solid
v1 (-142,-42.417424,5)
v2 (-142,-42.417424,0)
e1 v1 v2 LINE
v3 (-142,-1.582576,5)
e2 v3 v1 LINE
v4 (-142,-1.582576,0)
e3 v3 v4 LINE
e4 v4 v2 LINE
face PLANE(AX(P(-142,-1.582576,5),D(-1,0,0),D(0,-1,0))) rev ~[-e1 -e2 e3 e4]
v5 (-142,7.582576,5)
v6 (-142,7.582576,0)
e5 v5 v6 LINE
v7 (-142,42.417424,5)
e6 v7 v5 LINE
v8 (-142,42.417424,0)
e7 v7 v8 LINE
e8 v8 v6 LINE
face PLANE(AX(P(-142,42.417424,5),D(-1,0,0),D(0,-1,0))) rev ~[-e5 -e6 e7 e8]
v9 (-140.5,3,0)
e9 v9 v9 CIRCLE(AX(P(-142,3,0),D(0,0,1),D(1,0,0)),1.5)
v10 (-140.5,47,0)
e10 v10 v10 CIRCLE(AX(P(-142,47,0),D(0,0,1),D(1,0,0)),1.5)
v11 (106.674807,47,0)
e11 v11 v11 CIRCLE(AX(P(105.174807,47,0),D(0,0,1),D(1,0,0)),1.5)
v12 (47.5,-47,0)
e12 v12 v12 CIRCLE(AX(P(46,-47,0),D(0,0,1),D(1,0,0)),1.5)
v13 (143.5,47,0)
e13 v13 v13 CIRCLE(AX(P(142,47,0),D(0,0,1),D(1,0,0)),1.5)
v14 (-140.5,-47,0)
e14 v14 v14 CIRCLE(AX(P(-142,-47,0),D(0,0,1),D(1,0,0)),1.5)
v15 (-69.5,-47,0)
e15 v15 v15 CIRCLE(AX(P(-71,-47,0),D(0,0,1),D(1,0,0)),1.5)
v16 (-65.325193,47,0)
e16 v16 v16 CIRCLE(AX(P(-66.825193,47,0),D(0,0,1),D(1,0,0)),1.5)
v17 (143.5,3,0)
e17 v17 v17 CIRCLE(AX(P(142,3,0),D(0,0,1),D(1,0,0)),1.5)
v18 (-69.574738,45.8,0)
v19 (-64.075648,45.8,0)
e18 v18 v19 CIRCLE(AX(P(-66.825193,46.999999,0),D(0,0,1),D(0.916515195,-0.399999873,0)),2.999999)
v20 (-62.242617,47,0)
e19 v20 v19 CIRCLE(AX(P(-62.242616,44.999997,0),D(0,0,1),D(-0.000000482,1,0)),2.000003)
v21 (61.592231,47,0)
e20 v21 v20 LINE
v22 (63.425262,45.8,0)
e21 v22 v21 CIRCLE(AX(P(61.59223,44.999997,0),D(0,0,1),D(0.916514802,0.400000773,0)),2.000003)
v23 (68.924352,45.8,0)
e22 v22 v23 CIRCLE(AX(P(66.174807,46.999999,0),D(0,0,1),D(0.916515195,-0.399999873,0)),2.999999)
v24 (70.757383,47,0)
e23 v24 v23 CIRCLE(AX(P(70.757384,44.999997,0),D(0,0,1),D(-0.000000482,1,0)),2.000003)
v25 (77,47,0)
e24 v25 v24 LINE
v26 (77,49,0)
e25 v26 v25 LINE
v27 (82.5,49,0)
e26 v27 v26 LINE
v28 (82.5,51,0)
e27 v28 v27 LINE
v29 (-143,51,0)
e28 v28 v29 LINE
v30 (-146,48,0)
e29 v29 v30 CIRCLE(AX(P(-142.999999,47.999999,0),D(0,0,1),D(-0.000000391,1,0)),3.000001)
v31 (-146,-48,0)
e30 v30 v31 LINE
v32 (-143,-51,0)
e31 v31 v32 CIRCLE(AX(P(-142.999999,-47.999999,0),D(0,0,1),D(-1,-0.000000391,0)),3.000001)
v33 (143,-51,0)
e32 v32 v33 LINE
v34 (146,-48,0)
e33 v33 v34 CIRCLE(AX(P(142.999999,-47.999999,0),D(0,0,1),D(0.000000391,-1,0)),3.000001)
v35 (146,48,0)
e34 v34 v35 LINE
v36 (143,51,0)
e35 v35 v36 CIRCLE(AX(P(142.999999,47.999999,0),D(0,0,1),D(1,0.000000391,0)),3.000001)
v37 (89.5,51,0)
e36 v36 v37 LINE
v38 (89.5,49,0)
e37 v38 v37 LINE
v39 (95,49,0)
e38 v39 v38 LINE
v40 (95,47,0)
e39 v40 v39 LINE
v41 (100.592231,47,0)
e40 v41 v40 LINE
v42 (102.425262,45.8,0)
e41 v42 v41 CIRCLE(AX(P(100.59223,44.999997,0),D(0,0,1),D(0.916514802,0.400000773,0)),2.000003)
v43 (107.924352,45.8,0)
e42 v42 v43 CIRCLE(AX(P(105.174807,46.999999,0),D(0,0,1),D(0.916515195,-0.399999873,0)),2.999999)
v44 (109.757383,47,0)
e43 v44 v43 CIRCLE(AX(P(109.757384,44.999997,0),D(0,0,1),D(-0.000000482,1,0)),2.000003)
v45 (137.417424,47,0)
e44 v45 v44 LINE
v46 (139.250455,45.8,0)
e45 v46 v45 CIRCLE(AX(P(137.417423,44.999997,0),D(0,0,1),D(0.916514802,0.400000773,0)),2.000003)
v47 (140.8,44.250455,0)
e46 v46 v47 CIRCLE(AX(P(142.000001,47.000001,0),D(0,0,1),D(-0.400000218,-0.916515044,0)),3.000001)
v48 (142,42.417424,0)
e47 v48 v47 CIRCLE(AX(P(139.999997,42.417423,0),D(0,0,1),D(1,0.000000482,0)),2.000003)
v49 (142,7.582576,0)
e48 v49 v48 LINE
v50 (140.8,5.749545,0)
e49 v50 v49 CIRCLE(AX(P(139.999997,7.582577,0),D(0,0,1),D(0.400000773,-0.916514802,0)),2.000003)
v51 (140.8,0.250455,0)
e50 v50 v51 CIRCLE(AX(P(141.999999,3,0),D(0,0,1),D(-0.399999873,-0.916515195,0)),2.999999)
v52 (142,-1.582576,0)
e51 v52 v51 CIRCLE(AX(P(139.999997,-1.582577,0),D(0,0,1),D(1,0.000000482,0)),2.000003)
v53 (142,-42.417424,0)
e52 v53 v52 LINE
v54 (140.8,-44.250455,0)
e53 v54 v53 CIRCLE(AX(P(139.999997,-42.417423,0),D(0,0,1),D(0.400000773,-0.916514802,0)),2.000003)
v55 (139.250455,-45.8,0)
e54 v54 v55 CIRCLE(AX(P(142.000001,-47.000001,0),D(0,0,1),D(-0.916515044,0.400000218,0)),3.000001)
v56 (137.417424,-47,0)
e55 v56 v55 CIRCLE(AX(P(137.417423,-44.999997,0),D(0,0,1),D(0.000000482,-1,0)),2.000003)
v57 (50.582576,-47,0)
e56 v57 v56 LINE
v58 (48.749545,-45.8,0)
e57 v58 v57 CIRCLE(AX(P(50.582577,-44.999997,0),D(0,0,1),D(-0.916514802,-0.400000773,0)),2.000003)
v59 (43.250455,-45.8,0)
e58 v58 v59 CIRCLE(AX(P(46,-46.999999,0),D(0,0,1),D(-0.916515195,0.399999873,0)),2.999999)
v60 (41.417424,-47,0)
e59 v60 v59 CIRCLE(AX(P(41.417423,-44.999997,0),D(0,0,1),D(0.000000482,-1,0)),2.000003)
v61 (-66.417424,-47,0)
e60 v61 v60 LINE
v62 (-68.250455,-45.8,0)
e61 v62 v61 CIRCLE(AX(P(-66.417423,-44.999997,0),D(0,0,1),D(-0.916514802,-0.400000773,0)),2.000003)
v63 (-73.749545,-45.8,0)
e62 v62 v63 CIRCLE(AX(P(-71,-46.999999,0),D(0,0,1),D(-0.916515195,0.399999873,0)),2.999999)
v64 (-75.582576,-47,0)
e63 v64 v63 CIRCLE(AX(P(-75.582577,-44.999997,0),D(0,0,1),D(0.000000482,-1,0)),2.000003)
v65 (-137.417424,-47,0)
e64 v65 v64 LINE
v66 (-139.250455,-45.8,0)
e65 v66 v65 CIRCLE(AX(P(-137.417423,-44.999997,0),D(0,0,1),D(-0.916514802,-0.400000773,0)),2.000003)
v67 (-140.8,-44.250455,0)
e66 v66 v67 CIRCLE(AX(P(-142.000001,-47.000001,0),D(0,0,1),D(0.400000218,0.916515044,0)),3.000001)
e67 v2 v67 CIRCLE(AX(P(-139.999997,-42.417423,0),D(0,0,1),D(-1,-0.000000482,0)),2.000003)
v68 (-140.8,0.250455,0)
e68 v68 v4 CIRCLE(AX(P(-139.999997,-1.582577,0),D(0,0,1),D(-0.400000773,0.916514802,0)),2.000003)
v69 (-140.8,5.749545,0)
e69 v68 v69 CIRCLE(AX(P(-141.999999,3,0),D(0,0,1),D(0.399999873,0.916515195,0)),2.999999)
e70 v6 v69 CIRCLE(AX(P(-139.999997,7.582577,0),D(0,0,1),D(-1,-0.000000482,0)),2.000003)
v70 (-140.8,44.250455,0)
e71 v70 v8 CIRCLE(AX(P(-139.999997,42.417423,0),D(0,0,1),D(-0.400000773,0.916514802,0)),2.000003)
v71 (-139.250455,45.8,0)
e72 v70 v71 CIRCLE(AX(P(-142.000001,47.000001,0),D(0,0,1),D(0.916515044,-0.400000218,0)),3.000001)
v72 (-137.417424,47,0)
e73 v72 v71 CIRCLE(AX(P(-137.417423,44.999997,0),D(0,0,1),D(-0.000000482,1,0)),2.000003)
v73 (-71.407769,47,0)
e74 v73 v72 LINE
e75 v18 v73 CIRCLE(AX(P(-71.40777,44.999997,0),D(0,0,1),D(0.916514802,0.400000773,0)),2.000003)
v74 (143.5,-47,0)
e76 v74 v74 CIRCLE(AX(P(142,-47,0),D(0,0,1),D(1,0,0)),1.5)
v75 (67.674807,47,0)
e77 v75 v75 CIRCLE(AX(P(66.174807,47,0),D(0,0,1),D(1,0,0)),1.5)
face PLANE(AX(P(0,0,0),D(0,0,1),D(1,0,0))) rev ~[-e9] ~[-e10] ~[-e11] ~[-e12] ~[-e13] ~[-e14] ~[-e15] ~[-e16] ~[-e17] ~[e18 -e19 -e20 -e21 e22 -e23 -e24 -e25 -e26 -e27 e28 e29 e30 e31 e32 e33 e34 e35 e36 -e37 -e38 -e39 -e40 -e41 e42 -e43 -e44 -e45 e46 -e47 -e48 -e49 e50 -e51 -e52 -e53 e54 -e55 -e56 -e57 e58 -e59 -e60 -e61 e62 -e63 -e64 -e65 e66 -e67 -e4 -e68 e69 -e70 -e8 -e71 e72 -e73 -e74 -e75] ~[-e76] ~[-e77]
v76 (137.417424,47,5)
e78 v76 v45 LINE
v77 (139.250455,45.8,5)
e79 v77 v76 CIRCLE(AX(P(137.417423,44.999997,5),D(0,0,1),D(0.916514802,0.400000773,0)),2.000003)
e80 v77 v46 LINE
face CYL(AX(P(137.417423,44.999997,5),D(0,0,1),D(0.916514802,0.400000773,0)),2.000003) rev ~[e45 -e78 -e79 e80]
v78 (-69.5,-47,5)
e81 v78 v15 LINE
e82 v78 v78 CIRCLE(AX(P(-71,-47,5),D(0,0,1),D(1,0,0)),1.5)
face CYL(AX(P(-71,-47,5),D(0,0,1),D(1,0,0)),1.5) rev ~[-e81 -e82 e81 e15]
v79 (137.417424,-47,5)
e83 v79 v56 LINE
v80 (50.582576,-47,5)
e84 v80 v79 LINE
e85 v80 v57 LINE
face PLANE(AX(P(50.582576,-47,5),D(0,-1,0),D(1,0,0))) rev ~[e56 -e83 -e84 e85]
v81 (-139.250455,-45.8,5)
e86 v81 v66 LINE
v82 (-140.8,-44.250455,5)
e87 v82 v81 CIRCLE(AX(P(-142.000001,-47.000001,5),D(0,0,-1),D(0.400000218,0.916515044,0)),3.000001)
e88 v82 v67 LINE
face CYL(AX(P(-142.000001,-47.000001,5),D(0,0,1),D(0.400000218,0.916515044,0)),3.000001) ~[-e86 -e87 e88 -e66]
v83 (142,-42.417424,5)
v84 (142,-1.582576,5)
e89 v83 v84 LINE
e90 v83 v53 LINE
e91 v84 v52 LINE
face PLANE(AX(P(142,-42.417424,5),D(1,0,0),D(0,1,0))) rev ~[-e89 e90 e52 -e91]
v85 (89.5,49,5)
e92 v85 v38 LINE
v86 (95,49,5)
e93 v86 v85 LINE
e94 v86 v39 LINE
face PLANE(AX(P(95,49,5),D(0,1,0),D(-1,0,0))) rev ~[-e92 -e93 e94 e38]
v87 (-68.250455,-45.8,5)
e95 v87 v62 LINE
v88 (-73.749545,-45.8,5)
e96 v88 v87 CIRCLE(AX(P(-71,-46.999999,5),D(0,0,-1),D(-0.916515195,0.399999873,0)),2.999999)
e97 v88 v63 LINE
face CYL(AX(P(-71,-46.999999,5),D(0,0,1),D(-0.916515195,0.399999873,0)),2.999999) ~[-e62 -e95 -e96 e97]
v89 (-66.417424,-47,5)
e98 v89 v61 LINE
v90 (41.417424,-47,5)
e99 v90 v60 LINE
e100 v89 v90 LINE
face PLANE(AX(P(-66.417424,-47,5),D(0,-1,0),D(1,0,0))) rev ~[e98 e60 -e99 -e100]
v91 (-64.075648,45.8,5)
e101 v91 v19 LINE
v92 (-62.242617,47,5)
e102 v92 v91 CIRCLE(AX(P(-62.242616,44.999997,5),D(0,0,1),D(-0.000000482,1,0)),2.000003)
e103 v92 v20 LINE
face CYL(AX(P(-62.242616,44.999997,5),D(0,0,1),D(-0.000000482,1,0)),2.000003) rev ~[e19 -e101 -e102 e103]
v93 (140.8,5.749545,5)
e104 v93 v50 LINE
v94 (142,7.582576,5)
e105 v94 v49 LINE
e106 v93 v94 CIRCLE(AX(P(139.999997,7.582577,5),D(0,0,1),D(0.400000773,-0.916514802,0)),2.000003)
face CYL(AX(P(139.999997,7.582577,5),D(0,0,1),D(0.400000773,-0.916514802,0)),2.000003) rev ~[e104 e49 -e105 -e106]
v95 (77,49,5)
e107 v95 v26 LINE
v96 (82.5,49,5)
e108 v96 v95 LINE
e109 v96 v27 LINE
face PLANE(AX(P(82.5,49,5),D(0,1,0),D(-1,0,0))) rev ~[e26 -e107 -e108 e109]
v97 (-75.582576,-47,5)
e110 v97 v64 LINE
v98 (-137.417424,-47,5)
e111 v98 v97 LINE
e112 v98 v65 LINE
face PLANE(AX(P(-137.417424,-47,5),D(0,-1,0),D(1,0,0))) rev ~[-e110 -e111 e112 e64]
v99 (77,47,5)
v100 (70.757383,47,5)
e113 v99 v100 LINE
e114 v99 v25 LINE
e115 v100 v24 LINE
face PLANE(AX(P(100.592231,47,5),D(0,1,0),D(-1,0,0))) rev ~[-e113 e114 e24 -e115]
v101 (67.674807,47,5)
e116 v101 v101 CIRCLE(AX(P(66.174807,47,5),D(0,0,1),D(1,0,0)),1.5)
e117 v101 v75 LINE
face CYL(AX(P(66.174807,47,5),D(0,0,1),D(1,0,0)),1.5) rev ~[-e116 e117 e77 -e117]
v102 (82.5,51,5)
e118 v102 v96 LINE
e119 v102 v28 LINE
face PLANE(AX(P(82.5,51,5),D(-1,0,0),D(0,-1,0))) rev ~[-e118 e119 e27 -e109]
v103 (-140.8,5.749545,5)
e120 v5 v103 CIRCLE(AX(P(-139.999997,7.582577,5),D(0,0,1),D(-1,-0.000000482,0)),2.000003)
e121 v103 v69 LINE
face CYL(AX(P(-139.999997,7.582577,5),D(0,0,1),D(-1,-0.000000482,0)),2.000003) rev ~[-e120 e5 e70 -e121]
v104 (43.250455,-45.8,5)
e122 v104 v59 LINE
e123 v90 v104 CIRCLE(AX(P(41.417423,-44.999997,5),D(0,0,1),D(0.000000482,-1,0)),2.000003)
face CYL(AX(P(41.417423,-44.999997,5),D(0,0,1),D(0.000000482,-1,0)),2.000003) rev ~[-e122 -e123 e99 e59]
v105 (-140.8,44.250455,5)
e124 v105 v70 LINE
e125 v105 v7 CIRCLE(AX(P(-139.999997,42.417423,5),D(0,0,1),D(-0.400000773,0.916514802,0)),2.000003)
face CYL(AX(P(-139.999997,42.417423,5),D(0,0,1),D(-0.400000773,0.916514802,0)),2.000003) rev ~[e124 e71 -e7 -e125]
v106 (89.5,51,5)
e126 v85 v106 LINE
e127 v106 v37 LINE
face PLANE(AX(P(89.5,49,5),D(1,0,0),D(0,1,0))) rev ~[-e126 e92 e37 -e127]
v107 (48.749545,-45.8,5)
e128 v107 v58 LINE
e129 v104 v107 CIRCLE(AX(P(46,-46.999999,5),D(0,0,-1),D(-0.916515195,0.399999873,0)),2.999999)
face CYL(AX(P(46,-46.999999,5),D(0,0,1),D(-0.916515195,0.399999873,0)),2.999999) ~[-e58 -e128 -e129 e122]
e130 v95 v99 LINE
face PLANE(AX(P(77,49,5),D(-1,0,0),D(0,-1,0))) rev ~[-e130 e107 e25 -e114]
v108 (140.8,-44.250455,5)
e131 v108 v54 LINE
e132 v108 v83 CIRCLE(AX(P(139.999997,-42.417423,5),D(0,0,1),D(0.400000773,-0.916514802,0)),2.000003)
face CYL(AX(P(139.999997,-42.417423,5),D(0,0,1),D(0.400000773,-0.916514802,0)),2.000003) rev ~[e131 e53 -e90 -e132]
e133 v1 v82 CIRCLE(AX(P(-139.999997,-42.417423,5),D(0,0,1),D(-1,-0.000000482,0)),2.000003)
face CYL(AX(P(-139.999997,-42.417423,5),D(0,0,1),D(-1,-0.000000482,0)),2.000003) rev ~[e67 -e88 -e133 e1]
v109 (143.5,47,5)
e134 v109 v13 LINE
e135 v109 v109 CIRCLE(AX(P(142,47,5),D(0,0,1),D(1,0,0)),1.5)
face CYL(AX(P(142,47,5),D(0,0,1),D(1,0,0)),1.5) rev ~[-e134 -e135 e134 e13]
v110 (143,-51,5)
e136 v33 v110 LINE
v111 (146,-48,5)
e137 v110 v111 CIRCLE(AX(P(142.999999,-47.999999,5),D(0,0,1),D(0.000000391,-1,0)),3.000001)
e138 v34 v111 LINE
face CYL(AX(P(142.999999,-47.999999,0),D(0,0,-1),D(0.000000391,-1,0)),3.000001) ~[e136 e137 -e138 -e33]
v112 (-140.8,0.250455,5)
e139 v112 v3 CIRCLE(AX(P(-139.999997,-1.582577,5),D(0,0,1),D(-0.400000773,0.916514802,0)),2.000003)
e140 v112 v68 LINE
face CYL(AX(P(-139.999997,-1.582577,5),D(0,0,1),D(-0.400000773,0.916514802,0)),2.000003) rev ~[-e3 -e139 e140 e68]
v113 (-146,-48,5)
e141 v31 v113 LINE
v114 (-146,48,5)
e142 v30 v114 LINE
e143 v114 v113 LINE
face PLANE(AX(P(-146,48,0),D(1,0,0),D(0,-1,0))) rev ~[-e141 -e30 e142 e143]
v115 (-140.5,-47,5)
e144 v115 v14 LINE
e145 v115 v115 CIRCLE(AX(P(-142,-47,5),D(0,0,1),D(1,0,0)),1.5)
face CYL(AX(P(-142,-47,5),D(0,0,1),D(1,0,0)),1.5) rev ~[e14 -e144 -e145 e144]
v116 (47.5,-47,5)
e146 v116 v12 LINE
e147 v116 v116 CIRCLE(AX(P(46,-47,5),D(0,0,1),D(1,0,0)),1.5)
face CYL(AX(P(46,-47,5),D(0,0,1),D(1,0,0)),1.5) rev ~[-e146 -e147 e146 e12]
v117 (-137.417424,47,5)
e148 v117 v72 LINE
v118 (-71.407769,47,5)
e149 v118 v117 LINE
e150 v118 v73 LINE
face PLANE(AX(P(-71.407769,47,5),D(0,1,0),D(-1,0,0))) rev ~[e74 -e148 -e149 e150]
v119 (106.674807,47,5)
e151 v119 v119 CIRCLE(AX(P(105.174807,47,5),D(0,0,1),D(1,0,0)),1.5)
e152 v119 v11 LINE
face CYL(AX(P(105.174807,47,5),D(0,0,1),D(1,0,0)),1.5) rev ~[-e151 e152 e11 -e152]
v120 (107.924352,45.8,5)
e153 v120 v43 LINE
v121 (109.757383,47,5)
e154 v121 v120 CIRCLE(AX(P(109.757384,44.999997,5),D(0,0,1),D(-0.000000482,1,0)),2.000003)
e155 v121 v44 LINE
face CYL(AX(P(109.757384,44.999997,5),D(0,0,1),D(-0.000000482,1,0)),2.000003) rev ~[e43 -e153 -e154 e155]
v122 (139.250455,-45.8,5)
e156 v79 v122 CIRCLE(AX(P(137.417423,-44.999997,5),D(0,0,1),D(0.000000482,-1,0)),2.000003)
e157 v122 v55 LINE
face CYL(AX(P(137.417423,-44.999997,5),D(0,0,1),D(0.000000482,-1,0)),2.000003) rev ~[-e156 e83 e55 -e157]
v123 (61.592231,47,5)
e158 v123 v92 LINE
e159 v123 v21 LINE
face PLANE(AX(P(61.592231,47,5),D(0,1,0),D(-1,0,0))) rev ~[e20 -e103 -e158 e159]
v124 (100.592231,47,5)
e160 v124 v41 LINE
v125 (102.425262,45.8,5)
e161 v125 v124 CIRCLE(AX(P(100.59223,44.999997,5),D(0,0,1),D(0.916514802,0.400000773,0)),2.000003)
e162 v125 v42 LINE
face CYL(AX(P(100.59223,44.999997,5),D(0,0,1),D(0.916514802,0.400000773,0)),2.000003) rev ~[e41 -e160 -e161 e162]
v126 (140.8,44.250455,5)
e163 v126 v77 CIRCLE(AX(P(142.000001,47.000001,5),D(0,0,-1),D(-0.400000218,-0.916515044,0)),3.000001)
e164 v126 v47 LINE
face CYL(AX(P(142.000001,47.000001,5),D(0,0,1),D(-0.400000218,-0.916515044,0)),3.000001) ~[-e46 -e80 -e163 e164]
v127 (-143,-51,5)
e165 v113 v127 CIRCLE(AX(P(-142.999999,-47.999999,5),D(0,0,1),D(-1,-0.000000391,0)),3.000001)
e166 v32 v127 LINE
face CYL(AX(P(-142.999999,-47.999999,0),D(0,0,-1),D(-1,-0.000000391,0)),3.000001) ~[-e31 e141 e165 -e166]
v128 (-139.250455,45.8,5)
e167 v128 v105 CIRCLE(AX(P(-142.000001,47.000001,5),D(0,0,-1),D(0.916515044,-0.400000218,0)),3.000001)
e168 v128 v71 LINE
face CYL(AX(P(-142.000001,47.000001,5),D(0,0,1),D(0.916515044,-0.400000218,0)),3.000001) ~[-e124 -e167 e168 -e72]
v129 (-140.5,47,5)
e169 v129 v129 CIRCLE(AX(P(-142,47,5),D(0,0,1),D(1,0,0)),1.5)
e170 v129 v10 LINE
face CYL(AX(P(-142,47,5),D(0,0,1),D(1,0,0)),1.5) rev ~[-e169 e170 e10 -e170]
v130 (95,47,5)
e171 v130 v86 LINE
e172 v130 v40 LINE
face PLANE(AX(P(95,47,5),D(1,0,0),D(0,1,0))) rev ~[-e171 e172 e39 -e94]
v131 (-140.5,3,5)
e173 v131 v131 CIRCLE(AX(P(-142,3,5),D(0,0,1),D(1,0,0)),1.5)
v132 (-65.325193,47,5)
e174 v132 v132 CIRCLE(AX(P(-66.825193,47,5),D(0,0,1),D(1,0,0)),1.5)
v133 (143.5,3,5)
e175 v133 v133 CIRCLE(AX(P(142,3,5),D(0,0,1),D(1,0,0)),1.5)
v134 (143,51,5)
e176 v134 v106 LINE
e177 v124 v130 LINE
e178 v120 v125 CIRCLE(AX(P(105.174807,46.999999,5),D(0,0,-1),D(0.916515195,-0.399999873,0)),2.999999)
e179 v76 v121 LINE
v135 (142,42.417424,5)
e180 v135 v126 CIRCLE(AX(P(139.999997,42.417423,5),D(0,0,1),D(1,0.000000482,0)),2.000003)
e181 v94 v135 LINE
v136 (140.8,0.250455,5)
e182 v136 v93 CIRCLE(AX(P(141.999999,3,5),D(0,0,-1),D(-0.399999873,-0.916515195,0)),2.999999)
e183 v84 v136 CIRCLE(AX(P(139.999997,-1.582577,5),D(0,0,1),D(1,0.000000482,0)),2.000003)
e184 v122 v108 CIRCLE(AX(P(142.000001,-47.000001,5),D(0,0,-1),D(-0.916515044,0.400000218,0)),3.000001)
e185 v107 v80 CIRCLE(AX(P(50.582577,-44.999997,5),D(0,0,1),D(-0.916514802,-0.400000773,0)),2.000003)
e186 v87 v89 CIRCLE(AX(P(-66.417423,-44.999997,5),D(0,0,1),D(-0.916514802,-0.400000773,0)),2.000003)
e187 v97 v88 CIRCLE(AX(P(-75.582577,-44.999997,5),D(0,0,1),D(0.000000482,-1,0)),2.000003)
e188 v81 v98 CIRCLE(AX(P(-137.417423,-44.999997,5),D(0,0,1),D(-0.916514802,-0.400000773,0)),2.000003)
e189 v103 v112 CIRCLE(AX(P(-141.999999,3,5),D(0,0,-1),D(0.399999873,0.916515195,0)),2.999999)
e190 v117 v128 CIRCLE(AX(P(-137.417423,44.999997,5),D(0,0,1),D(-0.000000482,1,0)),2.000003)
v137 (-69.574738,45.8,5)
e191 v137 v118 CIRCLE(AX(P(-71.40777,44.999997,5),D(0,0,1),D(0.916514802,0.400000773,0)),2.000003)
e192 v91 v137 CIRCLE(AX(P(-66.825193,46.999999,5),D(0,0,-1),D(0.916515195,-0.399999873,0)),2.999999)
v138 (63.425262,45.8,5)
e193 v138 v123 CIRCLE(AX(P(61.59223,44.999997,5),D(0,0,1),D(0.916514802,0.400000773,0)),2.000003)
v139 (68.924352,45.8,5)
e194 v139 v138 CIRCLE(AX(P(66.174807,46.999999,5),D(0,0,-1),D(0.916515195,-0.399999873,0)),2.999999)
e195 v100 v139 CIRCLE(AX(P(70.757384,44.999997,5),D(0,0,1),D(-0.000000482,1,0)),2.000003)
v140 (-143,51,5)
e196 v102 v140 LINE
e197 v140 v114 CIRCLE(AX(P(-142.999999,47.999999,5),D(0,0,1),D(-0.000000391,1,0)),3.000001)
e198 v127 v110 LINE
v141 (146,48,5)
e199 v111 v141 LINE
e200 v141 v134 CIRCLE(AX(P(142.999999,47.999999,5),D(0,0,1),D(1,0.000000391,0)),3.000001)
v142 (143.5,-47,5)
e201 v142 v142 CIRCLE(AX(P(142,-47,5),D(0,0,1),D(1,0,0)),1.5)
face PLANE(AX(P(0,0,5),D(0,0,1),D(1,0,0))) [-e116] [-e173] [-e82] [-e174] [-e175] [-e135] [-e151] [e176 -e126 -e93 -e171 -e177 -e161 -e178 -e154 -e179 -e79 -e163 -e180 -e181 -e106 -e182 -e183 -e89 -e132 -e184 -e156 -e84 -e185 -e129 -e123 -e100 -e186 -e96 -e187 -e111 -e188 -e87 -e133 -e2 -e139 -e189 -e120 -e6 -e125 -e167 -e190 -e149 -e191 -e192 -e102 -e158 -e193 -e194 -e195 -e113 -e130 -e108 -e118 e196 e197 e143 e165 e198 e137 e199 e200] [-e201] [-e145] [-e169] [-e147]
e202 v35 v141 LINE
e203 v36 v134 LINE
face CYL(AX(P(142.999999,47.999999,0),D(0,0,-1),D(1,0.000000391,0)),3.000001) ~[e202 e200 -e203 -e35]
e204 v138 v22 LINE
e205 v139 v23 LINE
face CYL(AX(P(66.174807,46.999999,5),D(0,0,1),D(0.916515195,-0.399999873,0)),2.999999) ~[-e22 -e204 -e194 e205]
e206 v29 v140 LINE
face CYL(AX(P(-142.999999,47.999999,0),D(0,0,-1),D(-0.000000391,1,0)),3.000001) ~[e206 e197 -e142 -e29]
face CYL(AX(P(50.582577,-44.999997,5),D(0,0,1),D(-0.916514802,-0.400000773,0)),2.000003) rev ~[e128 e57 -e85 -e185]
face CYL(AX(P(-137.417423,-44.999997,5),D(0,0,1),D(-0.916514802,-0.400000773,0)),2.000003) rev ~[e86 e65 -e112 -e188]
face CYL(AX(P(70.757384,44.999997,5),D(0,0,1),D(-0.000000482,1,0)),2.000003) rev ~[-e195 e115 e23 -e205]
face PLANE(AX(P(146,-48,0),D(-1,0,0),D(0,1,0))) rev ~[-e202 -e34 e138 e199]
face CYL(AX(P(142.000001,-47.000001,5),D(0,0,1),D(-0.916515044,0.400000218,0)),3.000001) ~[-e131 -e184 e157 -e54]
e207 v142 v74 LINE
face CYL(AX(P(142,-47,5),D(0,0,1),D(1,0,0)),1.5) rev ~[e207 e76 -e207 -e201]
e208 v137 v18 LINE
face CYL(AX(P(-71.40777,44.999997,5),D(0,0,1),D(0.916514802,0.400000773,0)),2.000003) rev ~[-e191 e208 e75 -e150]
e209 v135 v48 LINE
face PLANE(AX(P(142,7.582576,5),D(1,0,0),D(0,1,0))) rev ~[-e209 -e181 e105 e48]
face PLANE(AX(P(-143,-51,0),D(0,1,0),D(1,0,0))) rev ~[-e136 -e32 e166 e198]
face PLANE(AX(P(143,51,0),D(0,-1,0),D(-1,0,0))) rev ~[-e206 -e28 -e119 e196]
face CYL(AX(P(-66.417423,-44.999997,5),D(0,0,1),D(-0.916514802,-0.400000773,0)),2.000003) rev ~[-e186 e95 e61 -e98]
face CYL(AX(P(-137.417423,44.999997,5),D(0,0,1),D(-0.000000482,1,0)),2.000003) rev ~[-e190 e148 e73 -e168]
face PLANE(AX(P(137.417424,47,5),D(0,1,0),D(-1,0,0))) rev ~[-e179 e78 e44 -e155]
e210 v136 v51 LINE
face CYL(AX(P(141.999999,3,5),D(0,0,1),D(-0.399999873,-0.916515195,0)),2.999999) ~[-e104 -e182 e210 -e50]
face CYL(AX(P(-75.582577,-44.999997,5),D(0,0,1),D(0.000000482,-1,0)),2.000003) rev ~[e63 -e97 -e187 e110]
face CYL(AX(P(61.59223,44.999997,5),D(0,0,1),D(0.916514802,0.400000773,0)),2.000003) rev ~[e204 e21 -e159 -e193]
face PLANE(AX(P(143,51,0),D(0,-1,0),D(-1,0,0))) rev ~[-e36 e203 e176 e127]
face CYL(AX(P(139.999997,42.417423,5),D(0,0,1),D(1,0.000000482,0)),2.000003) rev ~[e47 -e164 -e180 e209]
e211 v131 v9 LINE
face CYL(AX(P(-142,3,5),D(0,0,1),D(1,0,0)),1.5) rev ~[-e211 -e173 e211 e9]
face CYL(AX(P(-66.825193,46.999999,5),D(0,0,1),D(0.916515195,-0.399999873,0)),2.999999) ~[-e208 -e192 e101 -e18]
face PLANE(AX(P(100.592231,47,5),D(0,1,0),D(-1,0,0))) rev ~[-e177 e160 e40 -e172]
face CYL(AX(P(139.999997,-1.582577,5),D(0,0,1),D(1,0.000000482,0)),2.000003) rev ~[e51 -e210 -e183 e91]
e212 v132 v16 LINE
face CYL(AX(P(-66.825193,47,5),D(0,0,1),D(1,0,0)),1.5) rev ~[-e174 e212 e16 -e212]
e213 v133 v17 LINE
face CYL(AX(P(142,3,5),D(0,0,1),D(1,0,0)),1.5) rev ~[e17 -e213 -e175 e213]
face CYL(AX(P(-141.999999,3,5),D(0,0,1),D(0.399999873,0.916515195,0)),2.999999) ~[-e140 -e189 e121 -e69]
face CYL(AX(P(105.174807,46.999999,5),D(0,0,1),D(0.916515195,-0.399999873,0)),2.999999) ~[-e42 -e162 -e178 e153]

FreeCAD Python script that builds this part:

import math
import FreeCAD as App
import Part
import Sketcher
from FreeCAD import Vector
Q = App.Units.Quantity

doc = App.newDocument("Part")
body = doc.addObject("PartDesign::Body", "Body")

# Sketch on XY plane
sketch1 = doc.addObject("Sketcher::SketchObject", "Sketch")
body.addObject(sketch1)
sketch1.AttachmentSupport = (doc.XY_Plane, [""])
sketch1.MapMode = "FlatFace"
sketch1.addGeometry(Part.ArcOfCircle(Part.Circle(Vector(143, 48, 0), Vector(0, 0, 1), 3), math.radians(0), math.radians(90)), False)
sketch1.addGeometry(Part.LineSegment(Vector(143, 51, 0), Vector(-143, 51, 0)), False)
sketch1.addGeometry(Part.ArcOfCircle(Part.Circle(Vector(-143, 48, 0), Vector(0, 0, 1), 3), math.radians(90), math.radians(180)), False)
sketch1.addGeometry(Part.LineSegment(Vector(-146, 48, 0), Vector(-146, -48, 0)), False)
sketch1.addGeometry(Part.ArcOfCircle(Part.Circle(Vector(-143, -48, 0), Vector(0, 0, 1), 3), math.radians(-180), math.radians(-90)), False)
sketch1.addGeometry(Part.LineSegment(Vector(-143, -51, 0), Vector(143, -51, 0)), False)
sketch1.addGeometry(Part.ArcOfCircle(Part.Circle(Vector(143, -48, 0), Vector(0, 0, 1), 3), math.radians(-90), math.radians(0)), False)
sketch1.addGeometry(Part.LineSegment(Vector(146, -48, 0), Vector(146, 48, 0)), False)
sketch1.addConstraint(Sketcher.Constraint("Tangent", 0, 2, 1, 1))
sketch1.addConstraint(Sketcher.Constraint("Tangent", 1, 2, 2, 1))
sketch1.addConstraint(Sketcher.Constraint("Tangent", 2, 2, 3, 1))
sketch1.addConstraint(Sketcher.Constraint("Tangent", 3, 2, 4, 1))
sketch1.addConstraint(Sketcher.Constraint("Tangent", 4, 2, 5, 1))
sketch1.addConstraint(Sketcher.Constraint("Tangent", 5, 2, 6, 1))
sketch1.addConstraint(Sketcher.Constraint("Tangent", 6, 2, 7, 1))
sketch1.addConstraint(Sketcher.Constraint("Tangent", 7, 2, 0, 1))
sketch1.addConstraint(Sketcher.Constraint("Horizontal", 1))
sketch1.addConstraint(Sketcher.Constraint("Vertical", 3))
sketch1.addConstraint(Sketcher.Constraint("Horizontal", 5))
sketch1.addConstraint(Sketcher.Constraint("Vertical", 7))
sketch1.addConstraint(Sketcher.Constraint("Equal", 0, 2))
sketch1.addConstraint(Sketcher.Constraint("Equal", 2, 4))
sketch1.addConstraint(Sketcher.Constraint("Equal", 4, 6))
sketch1.addConstraint(Sketcher.Constraint("Symmetric", 0, 3, 4, 3, -1, 1))
sketch1.addConstraint(Sketcher.Constraint("Radius", 0, Q("3.000001 mm")))
sketch1.addConstraint(Sketcher.Constraint("DistanceX", 1, 2, 1, 1, Q("286 mm")))
sketch1.addConstraint(Sketcher.Constraint("DistanceY", 3, 2, 3, 1, Q("96 mm")))
pad1 = doc.addObject("PartDesign::Pad", "Pad")
body.addObject(pad1)
pad1.Profile = sketch1
pad1.Length = 5

# Sketch on XY plane
sketch2 = doc.addObject("Sketcher::SketchObject", "Sketch001")
body.addObject(sketch2)
sketch2.AttachmentSupport = (doc.XY_Plane, [""])
sketch2.MapMode = "FlatFace"
sketch2.AttachmentOffset = App.Placement(Vector(0, 0, 5), App.Rotation())
sketch2.addGeometry(Part.Circle(Vector(-142, 47, 0), Vector(0, 0, 1), 1.1), False)
sketch2.addGeometry(Part.Circle(Vector(142, 47, 0), Vector(0, 0, 1), 1.1), False)
sketch2.addGeometry(Part.Circle(Vector(-66.8, 47, 0), Vector(0, 0, 1), 1.1), False)
sketch2.addGeometry(Part.Circle(Vector(66.2, 47, 0), Vector(0, 0, 1), 1.1), False)
sketch2.addGeometry(Part.Circle(Vector(-142, -47, 0), Vector(0, 0, 1), 1.1), False)
sketch2.addGeometry(Part.Circle(Vector(142, -47, 0), Vector(0, 0, 1), 1.1), False)
sketch2.addGeometry(Part.Circle(Vector(-71, -47, 0), Vector(0, 0, 1), 1.1), False)
sketch2.addGeometry(Part.Circle(Vector(46, -47, 0), Vector(0, 0, 1), 1.1), False)
sketch2.addGeometry(Part.Circle(Vector(142, 3, 0), Vector(0, 0, 1), 1.1), False)
sketch2.addGeometry(Part.Circle(Vector(-142, 3, 0), Vector(0, 0, 1), 1.1), False)
sketch2.addConstraint(Sketcher.Constraint("Equal", 0, 1))
sketch2.addConstraint(Sketcher.Constraint("Equal", 1, 2))
sketch2.addConstraint(Sketcher.Constraint("Equal", 2, 3))
sketch2.addConstraint(Sketcher.Constraint("Equal", 3, 4))
sketch2.addConstraint(Sketcher.Constraint("Equal", 4, 5))
sketch2.addConstraint(Sketcher.Constraint("Equal", 5, 6))
sketch2.addConstraint(Sketcher.Constraint("Equal", 6, 7))
sketch2.addConstraint(Sketcher.Constraint("Equal", 7, 8))
sketch2.addConstraint(Sketcher.Constraint("Equal", 8, 9))
sketch2.addConstraint(Sketcher.Constraint("Symmetric", 1, 3, 4, 3, -1, 1))
sketch2.addConstraint(Sketcher.Constraint("Symmetric", 0, 3, 5, 3, -1, 1))
sketch2.addConstraint(Sketcher.Constraint("Symmetric", 0, 3, 1, 3, -2))
sketch2.addConstraint(Sketcher.Constraint("Symmetric", 8, 3, 9, 3, -2))
sketch2.addConstraint(Sketcher.Constraint("Horizontal", 1, 3, 2, 3))
sketch2.addConstraint(Sketcher.Constraint("Horizontal", 2, 3, 3, 3))
sketch2.addConstraint(Sketcher.Constraint("Horizontal", 5, 3, 6, 3))
sketch2.addConstraint(Sketcher.Constraint("Horizontal", 6, 3, 7, 3))
sketch2.addConstraint(Sketcher.Constraint("Vertical", 5, 3, 8, 3))
sketch2.addConstraint(Sketcher.Constraint("Diameter", 0, Q("2.2 mm")))
sketch2.addConstraint(Sketcher.Constraint("DistanceX", 0, 3, -1, 1, Q("142 mm")))
sketch2.addConstraint(Sketcher.Constraint("DistanceY", -1, 1, 0, 3, Q("47 mm")))
sketch2.addConstraint(Sketcher.Constraint("DistanceX", 6, 3, -1, 1, Q("71 mm")))
sketch2.addConstraint(Sketcher.Constraint("DistanceX", -1, 1, 7, 3, Q("46 mm")))
sketch2.addConstraint(Sketcher.Constraint("DistanceY", -1, 1, 8, 3, Q("3 mm")))
sketch2.addConstraint(Sketcher.Constraint("DistanceX", 2, 3, 3, 3, Q("133 mm")))
sketch2.addConstraint(Sketcher.Constraint("DistanceX", 2, 3, -1, 1, Q("66.825193 mm")))
pocket1 = doc.addObject("PartDesign::Pocket", "Pocket")
body.addObject(pocket1)
pocket1.Profile = sketch2
pocket1.Type = "ThroughAll"

# Sketch on XY plane
sketch3 = doc.addObject("Sketcher::SketchObject", "Sketch002")
body.addObject(sketch3)
sketch3.AttachmentSupport = (doc.XY_Plane, [""])
sketch3.MapMode = "FlatFace"
sketch3.AttachmentOffset = App.Placement(Vector(0, 0, 5), App.Rotation())
sketch3.addGeometry(Part.LineSegment(Vector(-71.4, 47, 0), Vector(-137.4, 47, 0)), False)
sketch3.addGeometry(Part.ArcOfCircle(Part.Circle(Vector(-137.4, 45, 0), Vector(0, 0, 1), 2), math.radians(90), math.radians(156)), False)
sketch3.addGeometry(Part.ArcOfCircle(Part.Circle(Vector(-142, 47, 0), Vector(0, 0, 1), 3), math.radians(-66), math.radians(-24)), False)
sketch3.addGeometry(Part.ArcOfCircle(Part.Circle(Vector(-140, 42.4, 0), Vector(0, 0, 1), 2), math.radians(114), math.radians(180)), False)
sketch3.addGeometry(Part.LineSegment(Vector(-142, 42.4, 0), Vector(-142, 7.6, 0)), False)
sketch3.addGeometry(Part.ArcOfCircle(Part.Circle(Vector(-140, 7.6, 0), Vector(0, 0, 1), 2), math.radians(-180), math.radians(-114)), False)
sketch3.addGeometry(Part.ArcOfCircle(Part.Circle(Vector(-142, 3, 0), Vector(0, 0, 1), 3), math.radians(-66), math.radians(66)), False)
sketch3.addGeometry(Part.ArcOfCircle(Part.Circle(Vector(-140, -1.6, 0), Vector(0, 0, 1), 2), math.radians(114), math.radians(180)), False)
sketch3.addGeometry(Part.LineSegment(Vector(-142, -1.6, 0), Vector(-142, -42.4, 0)), False)
sketch3.addGeometry(Part.ArcOfCircle(Part.Circle(Vector(-140, -42.4, 0), Vector(0, 0, 1), 2), math.radians(-180), math.radians(-114)), False)
sketch3.addGeometry(Part.ArcOfCircle(Part.Circle(Vector(-142, -47, 0), Vector(0, 0, 1), 3), math.radians(24), math.radians(66)), False)
sketch3.addGeometry(Part.ArcOfCircle(Part.Circle(Vector(-137.4, -45, 0), Vector(0, 0, 1), 2), math.radians(-156), math.radians(-90)), False)
sketch3.addGeometry(Part.LineSegment(Vector(-137.4, -47, 0), Vector(-75.6, -47, 0)), False)
sketch3.addGeometry(Part.ArcOfCircle(Part.Circle(Vector(-75.6, -45, 0), Vector(0, 0, 1), 2), math.radians(-90), math.radians(-24)), False)
sketch3.addGeometry(Part.ArcOfCircle(Part.Circle(Vector(-71, -47, 0), Vector(0, 0, 1), 3), math.radians(24), math.radians(156)), False)
sketch3.addGeometry(Part.ArcOfCircle(Part.Circle(Vector(-66.4, -45, 0), Vector(0, 0, 1), 2), math.radians(-156), math.radians(-90)), False)
sketch3.addGeometry(Part.LineSegment(Vector(-66.4, -47, 0), Vector(41.4, -47, 0)), False)
sketch3.addGeometry(Part.ArcOfCircle(Part.Circle(Vector(41.4, -45, 0), Vector(0, 0, 1), 2), math.radians(-90), math.radians(-24)), False)
sketch3.addGeometry(Part.ArcOfCircle(Part.Circle(Vector(46, -47, 0), Vector(0, 0, 1), 3), math.radians(24), math.radians(156)), False)
sketch3.addGeometry(Part.ArcOfCircle(Part.Circle(Vector(50.6, -45, 0), Vector(0, 0, 1), 2), math.radians(-156), math.radians(-90)), False)
sketch3.addGeometry(Part.LineSegment(Vector(50.6, -47, 0), Vector(137.4, -47, 0)), False)
sketch3.addGeometry(Part.ArcOfCircle(Part.Circle(Vector(137.4, -45, 0), Vector(0, 0, 1), 2), math.radians(-90), math.radians(-24)), False)
sketch3.addGeometry(Part.ArcOfCircle(Part.Circle(Vector(142, -47, 0), Vector(0, 0, 1), 3), math.radians(114), math.radians(156)), False)
sketch3.addGeometry(Part.ArcOfCircle(Part.Circle(Vector(140, -42.4, 0), Vector(0, 0, 1), 2), math.radians(-66), math.radians(0)), False)
sketch3.addGeometry(Part.LineSegment(Vector(142, -42.4, 0), Vector(142, -1.6, 0)), False)
sketch3.addGeometry(Part.ArcOfCircle(Part.Circle(Vector(140, -1.6, 0), Vector(0, 0, 1), 2), math.radians(0), math.radians(66)), False)
sketch3.addGeometry(Part.ArcOfCircle(Part.Circle(Vector(142, 3, 0), Vector(0, 0, 1), 3), math.radians(114), math.radians(246)), False)
sketch3.addGeometry(Part.ArcOfCircle(Part.Circle(Vector(140, 7.6, 0), Vector(0, 0, 1), 2), math.radians(-66), math.radians(0)), False)
sketch3.addGeometry(Part.LineSegment(Vector(142, 7.6, 0), Vector(142, 42.4, 0)), False)
sketch3.addGeometry(Part.ArcOfCircle(Part.Circle(Vector(140, 42.4, 0), Vector(0, 0, 1), 2), math.radians(0), math.radians(66)), False)
sketch3.addGeometry(Part.ArcOfCircle(Part.Circle(Vector(142, 47, 0), Vector(0, 0, 1), 3), math.radians(-156), math.radians(-114)), False)
sketch3.addGeometry(Part.ArcOfCircle(Part.Circle(Vector(137.4, 45, 0), Vector(0, 0, 1), 2), math.radians(24), math.radians(90)), False)
sketch3.addGeometry(Part.LineSegment(Vector(137.4, 47, 0), Vector(109.8, 47, 0)), False)
sketch3.addGeometry(Part.ArcOfCircle(Part.Circle(Vector(109.8, 45, 0), Vector(0, 0, 1), 2), math.radians(90), math.radians(156)), False)
sketch3.addGeometry(Part.ArcOfCircle(Part.Circle(Vector(105.2, 47, 0), Vector(0, 0, 1), 3), math.radians(-156), math.radians(-24)), False)
sketch3.addGeometry(Part.ArcOfCircle(Part.Circle(Vector(100.6, 45, 0), Vector(0, 0, 1), 2), math.radians(24), math.radians(90)), False)
sketch3.addGeometry(Part.LineSegment(Vector(100.6, 47, 0), Vector(70.8, 47, 0)), False)
sketch3.addGeometry(Part.ArcOfCircle(Part.Circle(Vector(70.8, 45, 0), Vector(0, 0, 1), 2), math.radians(90), math.radians(156)), False)
sketch3.addGeometry(Part.ArcOfCircle(Part.Circle(Vector(66.2, 47, 0), Vector(0, 0, 1), 3), math.radians(-156), math.radians(-24)), False)
sketch3.addGeometry(Part.ArcOfCircle(Part.Circle(Vector(61.6, 45, 0), Vector(0, 0, 1), 2), math.radians(24), math.radians(90)), False)
sketch3.addGeometry(Part.LineSegment(Vector(61.6, 47, 0), Vector(-62.2, 47, 0)), False)
sketch3.addGeometry(Part.ArcOfCircle(Part.Circle(Vector(-62.2, 45, 0), Vector(0, 0, 1), 2), math.radians(90), math.radians(156)), False)
sketch3.addGeometry(Part.ArcOfCircle(Part.Circle(Vector(-66.8, 47, 0), Vector(0, 0, 1), 3), math.radians(-156), math.radians(-24)), False)
sketch3.addGeometry(Part.ArcOfCircle(Part.Circle(Vector(-71.4, 45, 0), Vector(0, 0, 1), 2), math.radians(24), math.radians(90)), False)
sketch3.addGeometry(Part.Circle(Vector(-142, 47, 0), Vector(0, 0, 1), 1.5), False)
sketch3.addGeometry(Part.Circle(Vector(-66.8, 47, 0), Vector(0, 0, 1), 1.5), False)
sketch3.addGeometry(Part.Circle(Vector(-142, 3, 0), Vector(0, 0, 1), 1.5), False)
sketch3.addGeometry(Part.Circle(Vector(-142, -47, 0), Vector(0, 0, 1), 1.5), False)
sketch3.addGeometry(Part.Circle(Vector(66.2, 47, 0), Vector(0, 0, 1), 1.5), False)
sketch3.addGeometry(Part.Circle(Vector(142, 3, 0), Vector(0, 0, 1), 1.5), False)
sketch3.addGeometry(Part.Circle(Vector(142, -47, 0), Vector(0, 0, 1), 1.5), False)
sketch3.addGeometry(Part.Circle(Vector(46, -47, 0), Vector(0, 0, 1), 1.5), False)
sketch3.addGeometry(Part.Circle(Vector(-71, -47, 0), Vector(0, 0, 1), 1.5), False)
sketch3.addGeometry(Part.Circle(Vector(142, 47, 0), Vector(0, 0, 1), 1.5), False)
sketch3.addGeometry(Part.Circle(Vector(105.2, 47, 0), Vector(0, 0, 1), 1.5), False)
sketch3.addConstraint(Sketcher.Constraint("Tangent", 0, 2, 1, 1))
sketch3.addConstraint(Sketcher.Constraint("Tangent", 1, 2, 2, 2))
sketch3.addConstraint(Sketcher.Constraint("Tangent", 2, 1, 3, 1))
sketch3.addConstraint(Sketcher.Constraint("Tangent", 3, 2, 4, 1))
sketch3.addConstraint(Sketcher.Constraint("Tangent", 4, 2, 5, 1))
sketch3.addConstraint(Sketcher.Constraint("Tangent", 5, 2, 6, 2))
sketch3.addConstraint(Sketcher.Constraint("Tangent", 6, 1, 7, 1))
sketch3.addConstraint(Sketcher.Constraint("Tangent", 7, 2, 8, 1))
sketch3.addConstraint(Sketcher.Constraint("Tangent", 8, 2, 9, 1))
sketch3.addConstraint(Sketcher.Constraint("Tangent", 9, 2, 10, 2))
sketch3.addConstraint(Sketcher.Constraint("Tangent", 10, 1, 11, 1))
sketch3.addConstraint(Sketcher.Constraint("Tangent", 11, 2, 12, 1))
sketch3.addConstraint(Sketcher.Constraint("Tangent", 12, 2, 13, 1))
sketch3.addConstraint(Sketcher.Constraint("Tangent", 13, 2, 14, 2))
sketch3.addConstraint(Sketcher.Constraint("Tangent", 14, 1, 15, 1))
sketch3.addConstraint(Sketcher.Constraint("Tangent", 15, 2, 16, 1))
sketch3.addConstraint(Sketcher.Constraint("Tangent", 16, 2, 17, 1))
sketch3.addConstraint(Sketcher.Constraint("Tangent", 17, 2, 18, 2))
sketch3.addConstraint(Sketcher.Constraint("Tangent", 18, 1, 19, 1))
sketch3.addConstraint(Sketcher.Constraint("Tangent", 19, 2, 20, 1))
sketch3.addConstraint(Sketcher.Constraint("Tangent", 20, 2, 21, 1))
sketch3.addConstraint(Sketcher.Constraint("Tangent", 21, 2, 22, 2))
sketch3.addConstraint(Sketcher.Constraint("Tangent", 22, 1, 23, 1))
sketch3.addConstraint(Sketcher.Constraint("Tangent", 23, 2, 24, 1))
sketch3.addConstraint(Sketcher.Constraint("Tangent", 24, 2, 25, 1))
sketch3.addConstraint(Sketcher.Constraint("Tangent", 25, 2, 26, 2))
sketch3.addConstraint(Sketcher.Constraint("Tangent", 26, 1, 27, 1))
sketch3.addConstraint(Sketcher.Constraint("Tangent", 27, 2, 28, 1))
sketch3.addConstraint(Sketcher.Constraint("Tangent", 28, 2, 29, 1))
sketch3.addConstraint(Sketcher.Constraint("Tangent", 29, 2, 30, 2))
sketch3.addConstraint(Sketcher.Constraint("Tangent", 30, 1, 31, 1))
sketch3.addConstraint(Sketcher.Constraint("Tangent", 31, 2, 32, 1))
sketch3.addConstraint(Sketcher.Constraint("Tangent", 32, 2, 33, 1))
sketch3.addConstraint(Sketcher.Constraint("Tangent", 33, 2, 34, 2))
sketch3.addConstraint(Sketcher.Constraint("Tangent", 34, 1, 35, 1))
sketch3.addConstraint(Sketcher.Constraint("Tangent", 35, 2, 36, 1))
sketch3.addConstraint(Sketcher.Constraint("Tangent", 36, 2, 37, 1))
sketch3.addConstraint(Sketcher.Constraint("Tangent", 37, 2, 38, 2))
sketch3.addConstraint(Sketcher.Constraint("Tangent", 38, 1, 39, 1))
sketch3.addConstraint(Sketcher.Constraint("Tangent", 39, 2, 40, 1))
sketch3.addConstraint(Sketcher.Constraint("Tangent", 40, 2, 41, 1))
sketch3.addConstraint(Sketcher.Constraint("Tangent", 41, 2, 42, 2))
sketch3.addConstraint(Sketcher.Constraint("Tangent", 42, 1, 43, 1))
sketch3.addConstraint(Sketcher.Constraint("Tangent", 43, 2, 0, 1))
sketch3.addConstraint(Sketcher.Constraint("Horizontal", 0))
sketch3.addConstraint(Sketcher.Constraint("Vertical", 4))
sketch3.addConstraint(Sketcher.Constraint("Vertical", 8))
sketch3.addConstraint(Sketcher.Constraint("Horizontal", 12))
sketch3.addConstraint(Sketcher.Constraint("Horizontal", 16))
sketch3.addConstraint(Sketcher.Constraint("Horizontal", 20))
sketch3.addConstraint(Sketcher.Constraint("Vertical", 24))
sketch3.addConstraint(Sketcher.Constraint("Vertical", 28))
sketch3.addConstraint(Sketcher.Constraint("Horizontal", 32))
sketch3.addConstraint(Sketcher.Constraint("Horizontal", 36))
sketch3.addConstraint(Sketcher.Constraint("Horizontal", 40))
sketch3.addConstraint(Sketcher.Constraint("Coincident", 44, 3, 2, 3))
sketch3.addConstraint(Sketcher.Constraint("Coincident", 45, 3, 42, 3))
sketch3.addConstraint(Sketcher.Constraint("Coincident", 46, 3, 6, 3))
sketch3.addConstraint(Sketcher.Constraint("Coincident", 47, 3, 10, 3))
sketch3.addConstraint(Sketcher.Constraint("Coincident", 48, 3, 38, 3))
sketch3.addConstraint(Sketcher.Constraint("Coincident", 49, 3, 26, 3))
sketch3.addConstraint(Sketcher.Constraint("Coincident", 50, 3, 22, 3))
sketch3.addConstraint(Sketcher.Constraint("Coincident", 51, 3, 18, 3))
sketch3.addConstraint(Sketcher.Constraint("Coincident", 52, 3, 14, 3))
sketch3.addConstraint(Sketcher.Constraint("Coincident", 53, 3, 30, 3))
sketch3.addConstraint(Sketcher.Constraint("Coincident", 54, 3, 34, 3))
sketch3.addConstraint(Sketcher.Constraint("Equal", 1, 3))
sketch3.addConstraint(Sketcher.Constraint("Equal", 3, 5))
sketch3.addConstraint(Sketcher.Constraint("Equal", 2, 6))
sketch3.addConstraint(Sketcher.Constraint("Equal", 5, 7))
sketch3.addConstraint(Sketcher.Constraint("Equal", 7, 9))
sketch3.addConstraint(Sketcher.Constraint("Equal", 6, 10))
sketch3.addConstraint(Sketcher.Constraint("Equal", 9, 11))
sketch3.addConstraint(Sketcher.Constraint("Equal", 11, 13))
sketch3.addConstraint(Sketcher.Constraint("Equal", 10, 14))
sketch3.addConstraint(Sketcher.Constraint("Equal", 13, 15))
sketch3.addConstraint(Sketcher.Constraint("Equal", 15, 17))
sketch3.addConstraint(Sketcher.Constraint("Equal", 14, 18))
sketch3.addConstraint(Sketcher.Constraint("Equal", 17, 19))
sketch3.addConstraint(Sketcher.Constraint("Equal", 19, 21))
sketch3.addConstraint(Sketcher.Constraint("Equal", 18, 22))
sketch3.addConstraint(Sketcher.Constraint("Equal", 21, 23))
sketch3.addConstraint(Sketcher.Constraint("Equal", 23, 25))
sketch3.addConstraint(Sketcher.Constraint("Equal", 22, 26))
sketch3.addConstraint(Sketcher.Constraint("Equal", 25, 27))
sketch3.addConstraint(Sketcher.Constraint("Equal", 27, 29))
sketch3.addConstraint(Sketcher.Constraint("Equal", 26, 30))
sketch3.addConstraint(Sketcher.Constraint("Equal", 29, 31))
sketch3.addConstraint(Sketcher.Constraint("Equal", 31, 33))
sketch3.addConstraint(Sketcher.Constraint("Equal", 30, 34))
sketch3.addConstraint(Sketcher.Constraint("Equal", 33, 35))
sketch3.addConstraint(Sketcher.Constraint("Equal", 35, 37))
sketch3.addConstraint(Sketcher.Constraint("Equal", 34, 38))
sketch3.addConstraint(Sketcher.Constraint("Equal", 37, 39))
sketch3.addConstraint(Sketcher.Constraint("Equal", 39, 41))
sketch3.addConstraint(Sketcher.Constraint("Equal", 38, 42))
sketch3.addConstraint(Sketcher.Constraint("Equal", 41, 43))
sketch3.addConstraint(Sketcher.Constraint("Equal", 44, 45))
sketch3.addConstraint(Sketcher.Constraint("Equal", 45, 46))
sketch3.addConstraint(Sketcher.Constraint("Equal", 46, 47))
sketch3.addConstraint(Sketcher.Constraint("Equal", 47, 48))
sketch3.addConstraint(Sketcher.Constraint("Equal", 48, 49))
sketch3.addConstraint(Sketcher.Constraint("Equal", 49, 50))
sketch3.addConstraint(Sketcher.Constraint("Equal", 50, 51))
sketch3.addConstraint(Sketcher.Constraint("Equal", 51, 52))
sketch3.addConstraint(Sketcher.Constraint("Equal", 52, 53))
sketch3.addConstraint(Sketcher.Constraint("Equal", 53, 54))
sketch3.addConstraint(Sketcher.Constraint("Symmetric", 1, 3, 21, 3, -1, 1))
sketch3.addConstraint(Sketcher.Constraint("Symmetric", 3, 3, 23, 3, -1, 1))
sketch3.addConstraint(Sketcher.Constraint("Symmetric", 9, 3, 29, 3, -1, 1))
sketch3.addConstraint(Sketcher.Constraint("Symmetric", 11, 3, 31, 3, -1, 1))
sketch3.addConstraint(Sketcher.Constraint("Symmetric", 11, 3, 21, 3, -2))
sketch3.addConstraint(Sketcher.Constraint("Symmetric", 9, 3, 23, 3, -2))
sketch3.addConstraint(Sketcher.Constraint("Symmetric", 6, 3, 26, 3, -2))
sketch3.addConstraint(Sketcher.Constraint("Horizontal", 10, 3, 14, 3))
sketch3.addConstraint(Sketcher.Constraint("Horizontal", 13, 3, 15, 3))
sketch3.addConstraint(Sketcher.Constraint("Horizontal", 14, 3, 18, 3))
sketch3.addConstraint(Sketcher.Constraint("Horizontal", 30, 3, 34, 3))
sketch3.addConstraint(Sketcher.Constraint("Horizontal", 33, 3, 35, 3))
sketch3.addConstraint(Sketcher.Constraint("Horizontal", 34, 3, 38, 3))
sketch3.addConstraint(Sketcher.Constraint("Horizontal", 37, 3, 39, 3))
sketch3.addConstraint(Sketcher.Constraint("Horizontal", 38, 3, 42, 3))
sketch3.addConstraint(Sketcher.Constraint("Horizontal", 54, 3, 0, 2))
sketch3.addConstraint(Sketcher.Constraint("Vertical", 2, 3, 6, 3))
sketch3.addConstraint(Sketcher.Constraint("Vertical", 47, 3, 3, 2))
sketch3.addConstraint(Sketcher.Constraint("Diameter", 44, Q("3 mm")))
sketch3.addConstraint(Sketcher.Constraint("Radius", 2, Q("3.000001 mm")))
sketch3.addConstraint(Sketcher.Constraint("DistanceX", 2, 3, -1, 1, Q("142.000001 mm")))
sketch3.addConstraint(Sketcher.Constraint("DistanceY", -1, 1, 2, 3, Q("47.000001 mm")))
sketch3.addConstraint(Sketcher.Constraint("DistanceY", -1, 1, 6, 3, Q("3 mm")))
sketch3.addConstraint(Sketcher.Constraint("DistanceX", 14, 3, -1, 1, Q("71 mm")))
sketch3.addConstraint(Sketcher.Constraint("DistanceX", -1, 1, 18, 3, Q("46 mm")))
sketch3.addConstraint(Sketcher.Constraint("DistanceY", -1, 1, 1, 2, Q("45.8 mm")))
sketch3.addConstraint(Sketcher.Constraint("DistanceX", 32, 2, 32, 1, Q("27.660041 mm")))
sketch3.addConstraint(Sketcher.Constraint("DistanceX", 0, 2, 0, 1, Q("66.009655 mm")))
sketch3.addConstraint(Sketcher.Constraint("DistanceX", 36, 2, 36, 1, Q("29.834848 mm")))
pocket2 = doc.addObject("PartDesign::Pocket", "Pocket001")
body.addObject(pocket2)
pocket2.Profile = sketch3
pocket2.Type = "ThroughAll"

# Sketch on XY plane
sketch4 = doc.addObject("Sketcher::SketchObject", "Sketch003")
body.addObject(sketch4)
sketch4.AttachmentSupport = (doc.XY_Plane, [""])
sketch4.MapMode = "FlatFace"
sketch4.AttachmentOffset = App.Placement(Vector(0, 0, 5), App.Rotation())
sketch4.addGeometry(Part.LineSegment(Vector(89.5, 51, 0), Vector(82.5, 51, 0)), False)
sketch4.addGeometry(Part.LineSegment(Vector(82.5, 51, 0), Vector(82.5, 49, 0)), False)
sketch4.addGeometry(Part.LineSegment(Vector(82.5, 49, 0), Vector(77, 49, 0)), False)
sketch4.addGeometry(Part.LineSegment(Vector(77, 49, 0), Vector(77, 47, 0)), False)
sketch4.addGeometry(Part.LineSegment(Vector(77, 47, 0), Vector(95, 47, 0)), False)
sketch4.addGeometry(Part.LineSegment(Vector(95, 47, 0), Vector(95, 49, 0)), False)
sketch4.addGeometry(Part.LineSegment(Vector(95, 49, 0), Vector(89.5, 49, 0)), False)
sketch4.addGeometry(Part.LineSegment(Vector(89.5, 49, 0), Vector(89.5, 51, 0)), False)
sketch4.addConstraint(Sketcher.Constraint("Coincident", 0, 2, 1, 1))
sketch4.addConstraint(Sketcher.Constraint("Coincident", 1, 2, 2, 1))
sketch4.addConstraint(Sketcher.Constraint("Coincident", 2, 2, 3, 1))
sketch4.addConstraint(Sketcher.Constraint("Coincident", 3, 2, 4, 1))
sketch4.addConstraint(Sketcher.Constraint("Coincident", 4, 2, 5, 1))
sketch4.addConstraint(Sketcher.Constraint("Coincident", 5, 2, 6, 1))
sketch4.addConstraint(Sketcher.Constraint("Coincident", 6, 2, 7, 1))
sketch4.addConstraint(Sketcher.Constraint("Coincident", 7, 2, 0, 1))
sketch4.addConstraint(Sketcher.Constraint("Horizontal", 0))
sketch4.addConstraint(Sketcher.Constraint("Vertical", 1))
sketch4.addConstraint(Sketcher.Constraint("Horizontal", 2))
sketch4.addConstraint(Sketcher.Constraint("Vertical", 3))
sketch4.addConstraint(Sketcher.Constraint("Horizontal", 4))
sketch4.addConstraint(Sketcher.Constraint("Vertical", 5))
sketch4.addConstraint(Sketcher.Constraint("Horizontal", 6))
sketch4.addConstraint(Sketcher.Constraint("Vertical", 7))
sketch4.addConstraint(Sketcher.Constraint("Horizontal", 2, 2, 5, 2))
sketch4.addConstraint(Sketcher.Constraint("Equal", 2, 6))
sketch4.addConstraint(Sketcher.Constraint("Equal", 1, 3))
sketch4.addConstraint(Sketcher.Constraint("DistanceX", 0, 2, 0, 1, Q("7 mm")))
sketch4.addConstraint(Sketcher.Constraint("DistanceX", 4, 1, 4, 2, Q("18 mm")))
sketch4.addConstraint(Sketcher.Constraint("DistanceY", 1, 2, 1, 1, Q("2 mm")))
sketch4.addConstraint(Sketcher.Constraint("DistanceY", -1, 1, 0, 2, Q("51 mm")))
sketch4.addConstraint(Sketcher.Constraint("DistanceX", -1, 1, 2, 2, Q("77 mm")))
pocket3 = doc.addObject("PartDesign::Pocket", "Pocket002")
body.addObject(pocket3)
pocket3.Profile = sketch4
pocket3.Type = "ThroughAll"

doc.recompute()
